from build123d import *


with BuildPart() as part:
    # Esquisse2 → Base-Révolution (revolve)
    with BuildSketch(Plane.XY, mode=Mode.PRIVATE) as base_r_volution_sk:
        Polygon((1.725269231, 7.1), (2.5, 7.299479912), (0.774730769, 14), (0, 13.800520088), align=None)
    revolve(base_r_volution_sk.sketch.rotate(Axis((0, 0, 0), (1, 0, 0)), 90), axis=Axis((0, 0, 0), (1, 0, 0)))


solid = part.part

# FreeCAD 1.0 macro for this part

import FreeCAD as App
import Part
import Sketcher

V = App.Vector

doc = App.newDocument("Part")
body = doc.addObject("PartDesign::Body", "Body")

# Sketch on XY plane
sketch1 = doc.addObject("Sketcher::SketchObject", "Sketch")
body.addObject(sketch1)
sketch1.AttachmentSupport = (doc.XY_Plane, [""])
sketch1.MapMode = "FlatFace"
sketch1.addGeometry(Part.LineSegment(V(1.7, 7.1, 0), V(2.5, 7.3, 0)), False)
sketch1.addGeometry(Part.LineSegment(V(2.5, 7.3, 0), V(0.8, 14, 0)), False)
sketch1.addGeometry(Part.LineSegment(V(0.8, 14, 0), V(0, 13.8, 0)), False)
sketch1.addGeometry(Part.LineSegment(V(0, 13.8, 0), V(1.7, 7.1, 0)), False)
sketch1.addConstraint(Sketcher.Constraint("Coincident", 0, 2, 1, 1))
sketch1.addConstraint(Sketcher.Constraint("Coincident", 1, 2, 2, 1))
sketch1.addConstraint(Sketcher.Constraint("Coincident", 2, 2, 3, 1))
sketch1.addConstraint(Sketcher.Constraint("Coincident", 3, 2, 0, 1))
sketch1.addConstraint(Sketcher.Constraint("PointOnObject", 2, 2, -2))
sketch1.addConstraint(Sketcher.Constraint("Perpendicular", 0, 1))
sketch1.addConstraint(Sketcher.Constraint("Perpendicular", 1, 2))
sketch1.addConstraint(Sketcher.Constraint("Perpendicular", 2, 3))
sketch1.addConstraint(Sketcher.Constraint("DistanceY", -1, 1, 1, 2, 14.0))
sketch1.addConstraint(Sketcher.Constraint("Distance", 0, 0.8))
sketch1.addConstraint(Sketcher.Constraint("DistanceX", -1, 1, 0, 2, 2.5))
sketch1.addConstraint(Sketcher.Constraint("DistanceY", -1, 1, 3, 2, 7.1))
revolution = doc.addObject("PartDesign::Revolution", "Revolution")
body.addObject(revolution)
revolution.Profile = sketch1
revolution.ReferenceAxis = (sketch1, ["H_Axis"])
revolution.Angle = 360

doc.recompute()
